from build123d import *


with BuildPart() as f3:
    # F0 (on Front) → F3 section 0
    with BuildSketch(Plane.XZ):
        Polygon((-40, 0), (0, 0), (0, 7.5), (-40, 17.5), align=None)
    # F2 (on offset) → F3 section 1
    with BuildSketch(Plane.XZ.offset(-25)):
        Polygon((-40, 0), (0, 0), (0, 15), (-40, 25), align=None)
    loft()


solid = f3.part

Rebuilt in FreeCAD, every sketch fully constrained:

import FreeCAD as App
import Part
import Sketcher

V = App.Vector


def add_polygon(sketch, points):
    """Adds a closed chain of lines whose ends are joined by coincident constraints."""
    first, n = sketch.GeometryCount, len(points)
    for a, b in zip(points, points[1:] + points[:1]):
        sketch.addGeometry(Part.LineSegment(App.Vector(*a, 0), App.Vector(*b, 0)), False)
    for i in range(n):
        sketch.addConstraint(Sketcher.Constraint("Coincident", first + i, 2, first + (i + 1) % n, 1))

doc = App.newDocument("Part")
body = doc.addObject("PartDesign::Body", "Body")

# Sketch on XZ plane
sketch1 = body.newObject("Sketcher::SketchObject", "Sketch")
sketch1.AttachmentSupport = (doc.getObject("XZ_Plane"), [""])
sketch1.MapMode = "FlatFace"
add_polygon(sketch1, [(-40, 0), (0, 0), (0, 8), (-40, 18)])  # lines 0-3
sketch1.addConstraint([
    Sketcher.Constraint("Horizontal", 0),
    Sketcher.Constraint("Vertical", 1),
    Sketcher.Constraint("Vertical", 3),
    Sketcher.Constraint("Coincident", 0, 2, -1, 1),
    Sketcher.Constraint("DistanceX", 0, 1, 0, 2, 40.0),
    Sketcher.Constraint("DistanceY", 1, 1, 1, 2, 7.5),
    Sketcher.Constraint("DistanceY", 3, 2, 3, 1, 17.5),
])

# Sketch on XZ plane
sketch2 = body.newObject("Sketcher::SketchObject", "Sketch001")
sketch2.AttachmentSupport = (doc.getObject("XZ_Plane"), [""])
sketch2.MapMode = "FlatFace"
sketch2.AttachmentOffset = App.Placement(V(0, 0, -25), App.Rotation())
add_polygon(sketch2, [(-40, 0), (0, 0), (0, 15), (-40, 25)])  # lines 0-3
sketch2.addConstraint([
    Sketcher.Constraint("Horizontal", 0),
    Sketcher.Constraint("Vertical", 1),
    Sketcher.Constraint("Vertical", 3),
    Sketcher.Constraint("Coincident", 0, 2, -1, 1),
    Sketcher.Constraint("DistanceX", 0, 1, 0, 2, 40.0),
    Sketcher.Constraint("DistanceY", 1, 1, 1, 2, 15.0),
    Sketcher.Constraint("DistanceY", 3, 2, 3, 1, 25.0),
])

additiveloft = body.newObject("PartDesign::AdditiveLoft", "AdditiveLoft")
additiveloft.Profile = sketch1
additiveloft.Sections = [sketch2]

doc.recompute()
